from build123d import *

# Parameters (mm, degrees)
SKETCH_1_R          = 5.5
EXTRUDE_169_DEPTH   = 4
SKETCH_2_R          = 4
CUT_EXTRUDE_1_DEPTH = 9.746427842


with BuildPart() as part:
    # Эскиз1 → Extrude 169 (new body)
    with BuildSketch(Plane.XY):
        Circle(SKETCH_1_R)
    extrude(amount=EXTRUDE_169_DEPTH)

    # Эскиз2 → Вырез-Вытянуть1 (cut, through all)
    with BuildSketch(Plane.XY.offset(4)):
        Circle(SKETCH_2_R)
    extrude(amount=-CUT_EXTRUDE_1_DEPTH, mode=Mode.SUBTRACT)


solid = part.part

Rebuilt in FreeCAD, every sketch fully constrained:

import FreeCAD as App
import Part
import Sketcher
from FreeCAD import Vector

doc = App.newDocument("Part")
body = doc.addObject("PartDesign::Body", "Body")

# Sketch on XY plane
sketch1 = body.newObject("Sketcher::SketchObject", "Sketch")
sketch1.AttachmentSupport = (doc.getObject("XY_Plane"), [""])
sketch1.MapMode = "FlatFace"
sketch1.addGeometry(Part.Circle(Vector(0, 0, 0), Vector(0, 0, 1), 6), False)
sketch1.addConstraint([
    Sketcher.Constraint("Coincident", 0, 3, -1, 1),
    Sketcher.Constraint("Diameter", 0, 11.0),
])
pad1 = body.newObject("PartDesign::Pad", "Pad")
pad1.Profile = sketch1
pad1.Length = 4

# Sketch on XY plane
sketch2 = body.newObject("Sketcher::SketchObject", "Sketch001")
sketch2.AttachmentSupport = (doc.getObject("XY_Plane"), [""])
sketch2.MapMode = "FlatFace"
sketch2.AttachmentOffset = App.Placement(Vector(0, 0, 4), App.Rotation())
sketch2.addGeometry(Part.Circle(Vector(0, 0, 0), Vector(0, 0, 1), 4), False)
sketch2.addConstraint([
    Sketcher.Constraint("Coincident", 0, 3, -1, 1),
    Sketcher.Constraint("Diameter", 0, 8.0),
])
pocket1 = body.newObject("PartDesign::Pocket", "Pocket")
pocket1.Profile = sketch2
pocket1.Type = "ThroughAll"

doc.recompute()
